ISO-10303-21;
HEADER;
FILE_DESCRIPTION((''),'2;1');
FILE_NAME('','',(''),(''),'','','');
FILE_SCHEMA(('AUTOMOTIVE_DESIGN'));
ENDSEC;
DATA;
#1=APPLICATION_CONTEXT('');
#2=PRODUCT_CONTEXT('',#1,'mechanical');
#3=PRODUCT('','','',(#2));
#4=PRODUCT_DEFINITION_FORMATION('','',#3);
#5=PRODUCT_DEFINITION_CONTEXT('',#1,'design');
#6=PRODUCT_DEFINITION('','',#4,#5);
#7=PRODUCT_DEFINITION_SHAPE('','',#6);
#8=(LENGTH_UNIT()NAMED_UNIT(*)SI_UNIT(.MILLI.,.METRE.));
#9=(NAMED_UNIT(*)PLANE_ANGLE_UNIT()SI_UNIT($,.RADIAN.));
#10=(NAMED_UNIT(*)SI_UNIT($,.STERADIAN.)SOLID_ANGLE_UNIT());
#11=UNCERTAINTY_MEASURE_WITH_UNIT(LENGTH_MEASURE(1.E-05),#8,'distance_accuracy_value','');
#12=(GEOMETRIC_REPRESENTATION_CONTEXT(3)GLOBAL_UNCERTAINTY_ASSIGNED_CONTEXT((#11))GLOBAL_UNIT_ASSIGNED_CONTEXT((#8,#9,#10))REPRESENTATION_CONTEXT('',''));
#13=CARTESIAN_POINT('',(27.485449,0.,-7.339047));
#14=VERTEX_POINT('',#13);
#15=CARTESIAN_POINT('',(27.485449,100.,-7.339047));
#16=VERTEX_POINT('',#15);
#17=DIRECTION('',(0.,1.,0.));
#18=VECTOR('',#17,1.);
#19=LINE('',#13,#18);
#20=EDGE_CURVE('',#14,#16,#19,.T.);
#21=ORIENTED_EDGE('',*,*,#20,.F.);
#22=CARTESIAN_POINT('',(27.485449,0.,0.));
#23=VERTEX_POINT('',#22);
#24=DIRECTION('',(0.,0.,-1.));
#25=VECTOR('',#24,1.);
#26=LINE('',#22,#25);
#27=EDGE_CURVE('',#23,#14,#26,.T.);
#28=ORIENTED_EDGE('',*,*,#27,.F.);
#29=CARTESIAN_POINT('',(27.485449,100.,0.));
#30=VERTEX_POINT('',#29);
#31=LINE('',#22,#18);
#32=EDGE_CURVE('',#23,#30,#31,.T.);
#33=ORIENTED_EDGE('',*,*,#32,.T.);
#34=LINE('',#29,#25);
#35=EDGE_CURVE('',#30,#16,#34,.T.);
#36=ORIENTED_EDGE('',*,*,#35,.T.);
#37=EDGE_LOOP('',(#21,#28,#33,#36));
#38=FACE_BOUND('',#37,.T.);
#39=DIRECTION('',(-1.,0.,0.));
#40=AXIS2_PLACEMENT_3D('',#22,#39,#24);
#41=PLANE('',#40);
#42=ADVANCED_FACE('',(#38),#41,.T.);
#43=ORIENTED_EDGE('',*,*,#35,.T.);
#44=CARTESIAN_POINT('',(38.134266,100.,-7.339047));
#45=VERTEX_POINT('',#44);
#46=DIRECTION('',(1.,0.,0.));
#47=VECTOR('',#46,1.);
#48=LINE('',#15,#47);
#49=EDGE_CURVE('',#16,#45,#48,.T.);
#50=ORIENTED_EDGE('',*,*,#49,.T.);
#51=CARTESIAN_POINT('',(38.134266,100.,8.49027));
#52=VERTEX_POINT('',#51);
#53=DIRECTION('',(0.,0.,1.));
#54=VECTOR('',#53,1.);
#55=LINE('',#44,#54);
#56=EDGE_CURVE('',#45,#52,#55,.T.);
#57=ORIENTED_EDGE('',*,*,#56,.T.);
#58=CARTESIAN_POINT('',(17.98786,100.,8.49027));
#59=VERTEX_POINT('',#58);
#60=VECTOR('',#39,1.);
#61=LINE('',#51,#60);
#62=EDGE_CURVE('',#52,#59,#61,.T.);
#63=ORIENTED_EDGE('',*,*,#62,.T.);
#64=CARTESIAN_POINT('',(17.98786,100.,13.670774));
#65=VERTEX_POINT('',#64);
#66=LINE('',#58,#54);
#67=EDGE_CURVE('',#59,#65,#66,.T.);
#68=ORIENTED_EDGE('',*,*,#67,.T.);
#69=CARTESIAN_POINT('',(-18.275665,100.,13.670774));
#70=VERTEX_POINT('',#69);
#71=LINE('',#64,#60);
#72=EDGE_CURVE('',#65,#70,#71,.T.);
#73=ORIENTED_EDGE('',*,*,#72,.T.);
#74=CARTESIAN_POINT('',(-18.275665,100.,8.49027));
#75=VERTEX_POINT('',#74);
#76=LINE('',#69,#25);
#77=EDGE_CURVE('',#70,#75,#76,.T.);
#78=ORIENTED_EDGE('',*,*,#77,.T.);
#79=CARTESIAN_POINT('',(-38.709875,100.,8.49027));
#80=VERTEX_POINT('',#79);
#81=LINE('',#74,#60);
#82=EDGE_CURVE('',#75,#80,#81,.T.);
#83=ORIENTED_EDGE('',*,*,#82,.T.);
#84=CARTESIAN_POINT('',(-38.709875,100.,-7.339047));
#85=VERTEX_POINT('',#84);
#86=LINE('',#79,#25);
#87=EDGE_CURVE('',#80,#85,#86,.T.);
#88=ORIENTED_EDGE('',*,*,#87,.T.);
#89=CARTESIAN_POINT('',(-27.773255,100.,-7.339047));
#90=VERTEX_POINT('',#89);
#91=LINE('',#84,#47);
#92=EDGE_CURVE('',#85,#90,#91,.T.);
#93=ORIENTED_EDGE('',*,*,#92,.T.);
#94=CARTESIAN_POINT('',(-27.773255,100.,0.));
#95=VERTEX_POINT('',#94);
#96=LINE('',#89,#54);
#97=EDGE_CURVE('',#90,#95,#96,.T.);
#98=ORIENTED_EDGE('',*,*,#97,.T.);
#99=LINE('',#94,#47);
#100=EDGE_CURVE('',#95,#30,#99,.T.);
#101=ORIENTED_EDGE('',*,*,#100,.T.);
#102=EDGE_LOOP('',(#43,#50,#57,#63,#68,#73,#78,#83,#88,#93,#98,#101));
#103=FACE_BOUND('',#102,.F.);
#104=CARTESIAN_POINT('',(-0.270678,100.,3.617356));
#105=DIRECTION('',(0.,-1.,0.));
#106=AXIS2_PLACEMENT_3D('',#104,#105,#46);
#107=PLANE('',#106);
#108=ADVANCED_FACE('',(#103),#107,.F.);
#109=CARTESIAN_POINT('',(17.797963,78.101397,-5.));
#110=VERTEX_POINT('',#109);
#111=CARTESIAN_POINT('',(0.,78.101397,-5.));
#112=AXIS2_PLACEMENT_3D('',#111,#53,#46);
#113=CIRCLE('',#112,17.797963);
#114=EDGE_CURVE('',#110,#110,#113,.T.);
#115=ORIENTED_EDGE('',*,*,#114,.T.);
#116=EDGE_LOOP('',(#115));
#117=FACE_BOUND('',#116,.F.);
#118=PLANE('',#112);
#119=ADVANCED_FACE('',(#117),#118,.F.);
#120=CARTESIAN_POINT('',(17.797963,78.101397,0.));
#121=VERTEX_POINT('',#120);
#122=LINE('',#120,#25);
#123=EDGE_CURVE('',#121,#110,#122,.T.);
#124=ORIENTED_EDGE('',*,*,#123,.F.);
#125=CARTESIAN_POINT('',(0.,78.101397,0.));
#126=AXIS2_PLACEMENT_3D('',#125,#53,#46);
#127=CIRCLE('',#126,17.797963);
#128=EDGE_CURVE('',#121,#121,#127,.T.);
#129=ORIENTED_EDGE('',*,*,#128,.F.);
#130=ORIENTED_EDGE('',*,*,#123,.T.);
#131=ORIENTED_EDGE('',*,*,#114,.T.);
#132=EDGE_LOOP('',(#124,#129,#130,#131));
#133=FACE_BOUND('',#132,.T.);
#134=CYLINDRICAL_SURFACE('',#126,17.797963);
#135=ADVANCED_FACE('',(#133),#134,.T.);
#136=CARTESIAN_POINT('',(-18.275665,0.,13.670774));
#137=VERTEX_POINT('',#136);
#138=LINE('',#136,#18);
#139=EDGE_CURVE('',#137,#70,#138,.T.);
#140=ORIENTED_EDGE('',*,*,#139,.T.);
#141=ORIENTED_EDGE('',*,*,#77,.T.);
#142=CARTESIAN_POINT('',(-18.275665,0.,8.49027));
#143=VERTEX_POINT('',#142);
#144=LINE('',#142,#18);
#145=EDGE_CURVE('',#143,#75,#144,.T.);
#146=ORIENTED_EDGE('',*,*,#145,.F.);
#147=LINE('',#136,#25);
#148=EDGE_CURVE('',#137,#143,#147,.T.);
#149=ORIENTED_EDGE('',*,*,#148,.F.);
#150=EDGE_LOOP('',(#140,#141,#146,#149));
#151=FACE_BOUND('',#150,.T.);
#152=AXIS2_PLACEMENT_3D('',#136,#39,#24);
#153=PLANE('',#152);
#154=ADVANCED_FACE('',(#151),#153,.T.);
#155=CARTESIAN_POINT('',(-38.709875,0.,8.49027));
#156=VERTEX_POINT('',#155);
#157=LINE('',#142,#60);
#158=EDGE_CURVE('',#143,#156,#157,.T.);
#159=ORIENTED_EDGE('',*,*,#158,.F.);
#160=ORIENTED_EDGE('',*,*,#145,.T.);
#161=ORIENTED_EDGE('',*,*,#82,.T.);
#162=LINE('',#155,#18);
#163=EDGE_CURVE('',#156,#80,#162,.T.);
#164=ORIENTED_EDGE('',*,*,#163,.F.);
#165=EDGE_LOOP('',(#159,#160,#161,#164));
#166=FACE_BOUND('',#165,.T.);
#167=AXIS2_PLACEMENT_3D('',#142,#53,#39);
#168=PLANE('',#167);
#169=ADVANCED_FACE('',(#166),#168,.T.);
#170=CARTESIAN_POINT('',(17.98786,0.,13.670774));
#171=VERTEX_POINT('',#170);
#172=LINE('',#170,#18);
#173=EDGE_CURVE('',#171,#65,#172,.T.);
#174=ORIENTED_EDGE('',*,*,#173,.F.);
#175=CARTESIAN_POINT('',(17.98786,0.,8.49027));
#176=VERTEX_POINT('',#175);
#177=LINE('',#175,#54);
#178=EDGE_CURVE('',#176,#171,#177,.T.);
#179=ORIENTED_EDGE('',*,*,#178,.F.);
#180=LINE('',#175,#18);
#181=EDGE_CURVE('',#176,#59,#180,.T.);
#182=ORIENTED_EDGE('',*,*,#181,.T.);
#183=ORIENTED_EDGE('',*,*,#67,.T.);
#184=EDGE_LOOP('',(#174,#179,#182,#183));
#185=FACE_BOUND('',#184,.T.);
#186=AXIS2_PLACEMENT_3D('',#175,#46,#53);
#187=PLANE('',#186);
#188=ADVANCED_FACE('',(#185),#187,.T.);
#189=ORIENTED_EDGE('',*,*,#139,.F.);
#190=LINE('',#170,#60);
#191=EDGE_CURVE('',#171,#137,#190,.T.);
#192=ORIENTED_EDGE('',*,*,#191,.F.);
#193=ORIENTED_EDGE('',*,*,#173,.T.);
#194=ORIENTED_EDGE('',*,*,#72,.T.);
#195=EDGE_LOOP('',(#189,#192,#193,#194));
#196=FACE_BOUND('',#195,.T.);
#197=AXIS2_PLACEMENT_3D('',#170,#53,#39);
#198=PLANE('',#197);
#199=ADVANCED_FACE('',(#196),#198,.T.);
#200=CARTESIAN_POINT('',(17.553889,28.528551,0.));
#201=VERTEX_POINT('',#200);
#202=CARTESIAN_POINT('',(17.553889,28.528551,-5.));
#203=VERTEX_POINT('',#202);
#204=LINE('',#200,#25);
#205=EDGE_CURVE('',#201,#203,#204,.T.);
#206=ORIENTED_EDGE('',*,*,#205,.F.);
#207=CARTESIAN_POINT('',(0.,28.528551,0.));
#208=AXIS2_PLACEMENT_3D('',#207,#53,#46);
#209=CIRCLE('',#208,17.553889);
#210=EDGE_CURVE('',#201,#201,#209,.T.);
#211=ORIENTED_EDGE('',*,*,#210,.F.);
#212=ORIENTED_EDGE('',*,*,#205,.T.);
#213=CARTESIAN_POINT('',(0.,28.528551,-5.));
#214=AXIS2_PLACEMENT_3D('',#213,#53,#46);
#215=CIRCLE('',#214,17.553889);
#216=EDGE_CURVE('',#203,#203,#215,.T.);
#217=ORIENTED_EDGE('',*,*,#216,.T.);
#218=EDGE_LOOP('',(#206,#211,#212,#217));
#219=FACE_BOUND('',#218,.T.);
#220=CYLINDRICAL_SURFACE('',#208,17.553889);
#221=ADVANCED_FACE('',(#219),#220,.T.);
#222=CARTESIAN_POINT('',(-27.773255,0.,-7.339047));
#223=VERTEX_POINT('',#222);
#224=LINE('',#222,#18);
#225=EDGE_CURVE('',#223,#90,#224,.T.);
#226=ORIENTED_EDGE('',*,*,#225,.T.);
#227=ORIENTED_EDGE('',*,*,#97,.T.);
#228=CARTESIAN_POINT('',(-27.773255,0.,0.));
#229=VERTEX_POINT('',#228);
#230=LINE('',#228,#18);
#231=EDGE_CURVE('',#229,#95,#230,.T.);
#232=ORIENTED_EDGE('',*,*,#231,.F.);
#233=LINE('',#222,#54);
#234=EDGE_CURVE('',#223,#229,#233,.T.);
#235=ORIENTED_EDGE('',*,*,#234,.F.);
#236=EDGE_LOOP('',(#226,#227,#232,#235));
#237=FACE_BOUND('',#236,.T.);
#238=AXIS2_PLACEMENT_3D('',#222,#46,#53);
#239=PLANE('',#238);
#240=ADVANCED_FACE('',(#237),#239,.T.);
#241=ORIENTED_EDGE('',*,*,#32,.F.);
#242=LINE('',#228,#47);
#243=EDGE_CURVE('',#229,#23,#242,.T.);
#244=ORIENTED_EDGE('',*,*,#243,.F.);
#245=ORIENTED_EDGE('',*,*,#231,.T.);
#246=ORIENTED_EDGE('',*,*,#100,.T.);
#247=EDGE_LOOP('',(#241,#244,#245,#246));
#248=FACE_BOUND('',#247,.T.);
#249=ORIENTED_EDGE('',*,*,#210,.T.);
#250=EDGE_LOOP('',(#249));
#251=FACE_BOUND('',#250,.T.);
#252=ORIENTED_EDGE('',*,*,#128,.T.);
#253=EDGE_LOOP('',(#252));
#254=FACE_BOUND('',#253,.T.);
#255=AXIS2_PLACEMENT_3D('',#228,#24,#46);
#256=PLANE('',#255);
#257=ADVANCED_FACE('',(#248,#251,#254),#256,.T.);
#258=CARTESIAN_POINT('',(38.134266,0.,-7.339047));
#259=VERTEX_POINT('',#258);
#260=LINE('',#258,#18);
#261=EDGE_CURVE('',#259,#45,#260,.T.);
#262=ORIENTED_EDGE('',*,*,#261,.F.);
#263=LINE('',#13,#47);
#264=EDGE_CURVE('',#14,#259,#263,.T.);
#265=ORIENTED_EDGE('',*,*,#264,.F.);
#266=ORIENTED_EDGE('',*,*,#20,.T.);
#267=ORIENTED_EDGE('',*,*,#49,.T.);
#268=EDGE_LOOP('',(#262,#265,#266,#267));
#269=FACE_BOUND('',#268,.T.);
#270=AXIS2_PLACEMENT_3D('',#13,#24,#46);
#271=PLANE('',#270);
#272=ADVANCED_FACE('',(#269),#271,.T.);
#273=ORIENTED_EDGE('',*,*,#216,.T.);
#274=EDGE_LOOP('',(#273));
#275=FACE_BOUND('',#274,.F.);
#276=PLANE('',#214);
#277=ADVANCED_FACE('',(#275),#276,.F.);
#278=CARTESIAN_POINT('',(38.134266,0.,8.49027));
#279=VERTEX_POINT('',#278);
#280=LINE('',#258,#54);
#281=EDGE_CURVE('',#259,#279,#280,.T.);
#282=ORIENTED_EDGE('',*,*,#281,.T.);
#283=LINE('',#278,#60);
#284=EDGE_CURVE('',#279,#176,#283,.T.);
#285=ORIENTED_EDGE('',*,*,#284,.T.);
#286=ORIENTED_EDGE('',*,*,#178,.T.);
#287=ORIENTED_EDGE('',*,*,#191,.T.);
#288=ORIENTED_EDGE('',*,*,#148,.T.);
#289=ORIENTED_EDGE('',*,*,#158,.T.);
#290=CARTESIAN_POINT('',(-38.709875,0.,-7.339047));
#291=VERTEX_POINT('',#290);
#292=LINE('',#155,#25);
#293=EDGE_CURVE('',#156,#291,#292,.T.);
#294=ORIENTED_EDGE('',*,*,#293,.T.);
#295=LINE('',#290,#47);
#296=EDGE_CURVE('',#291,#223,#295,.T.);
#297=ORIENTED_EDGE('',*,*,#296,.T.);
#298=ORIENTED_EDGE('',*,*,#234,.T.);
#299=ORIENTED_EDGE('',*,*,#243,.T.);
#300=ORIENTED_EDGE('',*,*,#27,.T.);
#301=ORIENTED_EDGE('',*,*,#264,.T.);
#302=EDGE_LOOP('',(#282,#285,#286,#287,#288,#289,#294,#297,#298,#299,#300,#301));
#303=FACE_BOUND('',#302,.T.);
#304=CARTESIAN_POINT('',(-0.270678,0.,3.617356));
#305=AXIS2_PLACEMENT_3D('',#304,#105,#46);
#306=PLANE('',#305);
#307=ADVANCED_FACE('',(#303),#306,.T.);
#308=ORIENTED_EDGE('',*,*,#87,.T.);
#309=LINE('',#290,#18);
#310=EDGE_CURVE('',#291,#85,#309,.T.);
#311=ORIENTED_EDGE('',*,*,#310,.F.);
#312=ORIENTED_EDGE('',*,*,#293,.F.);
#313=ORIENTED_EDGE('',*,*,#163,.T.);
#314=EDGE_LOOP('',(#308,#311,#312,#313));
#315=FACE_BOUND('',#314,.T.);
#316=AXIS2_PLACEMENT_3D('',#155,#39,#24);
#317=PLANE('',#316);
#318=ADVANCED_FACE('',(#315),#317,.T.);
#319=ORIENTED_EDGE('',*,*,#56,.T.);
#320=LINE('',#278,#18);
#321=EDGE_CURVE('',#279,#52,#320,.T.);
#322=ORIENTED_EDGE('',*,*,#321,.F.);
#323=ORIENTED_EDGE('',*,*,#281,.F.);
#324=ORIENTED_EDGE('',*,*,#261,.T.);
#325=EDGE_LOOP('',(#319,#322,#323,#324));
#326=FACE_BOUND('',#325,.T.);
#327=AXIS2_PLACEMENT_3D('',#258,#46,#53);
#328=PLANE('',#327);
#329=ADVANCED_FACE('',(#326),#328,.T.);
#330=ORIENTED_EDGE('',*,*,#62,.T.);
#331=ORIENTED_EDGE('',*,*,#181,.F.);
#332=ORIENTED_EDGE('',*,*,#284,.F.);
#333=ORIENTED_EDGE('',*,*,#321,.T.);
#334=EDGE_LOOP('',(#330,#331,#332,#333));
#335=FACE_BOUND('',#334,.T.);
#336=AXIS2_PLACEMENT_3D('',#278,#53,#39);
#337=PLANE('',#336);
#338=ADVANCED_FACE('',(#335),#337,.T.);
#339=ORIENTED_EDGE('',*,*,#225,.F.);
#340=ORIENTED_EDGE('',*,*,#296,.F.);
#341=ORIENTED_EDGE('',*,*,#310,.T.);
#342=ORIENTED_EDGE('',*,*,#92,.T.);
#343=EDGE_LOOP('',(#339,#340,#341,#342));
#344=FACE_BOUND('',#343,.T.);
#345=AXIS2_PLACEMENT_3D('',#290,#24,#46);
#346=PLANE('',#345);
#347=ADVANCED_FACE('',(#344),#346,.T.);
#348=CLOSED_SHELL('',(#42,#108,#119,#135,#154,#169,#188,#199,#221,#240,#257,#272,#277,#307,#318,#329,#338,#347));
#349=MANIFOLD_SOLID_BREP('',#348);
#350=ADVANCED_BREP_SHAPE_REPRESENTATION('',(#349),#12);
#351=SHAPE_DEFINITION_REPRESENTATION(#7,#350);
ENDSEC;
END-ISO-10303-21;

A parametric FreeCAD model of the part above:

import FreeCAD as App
import Part
import Sketcher
from FreeCAD import Vector
Q = App.Units.Quantity

doc = App.newDocument("Part")
params = doc.addObject("Spreadsheet::Sheet", "Params")
for row, (alias, value) in enumerate([
    ("pad1_length", "100 mm"),
    ("pad2_length", "5 mm"),
], start=1):
    params.set(f"A{row}", alias)
    params.set(f"B{row}", "=" + value)
    params.setAlias(f"B{row}", alias)

body = doc.addObject("PartDesign::Body", "Body")

sketch1 = doc.addObject("Sketcher::SketchObject", "Sketch")
body.addObject(sketch1)
sketch1.AttachmentSupport = (doc.XZ_Plane, [""])
sketch1.MapMode = "FlatFace"
sketch1.addGeometry(Part.LineSegment(Vector(-18, 8, 0), Vector(-39, 8, 0)), False)
sketch1.addGeometry(Part.LineSegment(Vector(-39, 8, 0), Vector(-39, -7, 0)), False)
sketch1.addGeometry(Part.LineSegment(Vector(-39, -7, 0), Vector(-28, -7, 0)), False)
sketch1.addGeometry(Part.LineSegment(Vector(-28, -7, 0), Vector(-28, 0, 0)), False)
sketch1.addGeometry(Part.LineSegment(Vector(-28, 0, 0), Vector(27, 0, 0)), False)
sketch1.addGeometry(Part.LineSegment(Vector(27, 0, 0), Vector(27, -7, 0)), False)
sketch1.addGeometry(Part.LineSegment(Vector(27, -7, 0), Vector(38, -7, 0)), False)
sketch1.addGeometry(Part.LineSegment(Vector(38, -7, 0), Vector(38, 8, 0)), False)
sketch1.addGeometry(Part.LineSegment(Vector(38, 8, 0), Vector(18, 8, 0)), False)
sketch1.addGeometry(Part.LineSegment(Vector(18, 8, 0), Vector(18, 14, 0)), False)
sketch1.addGeometry(Part.LineSegment(Vector(18, 14, 0), Vector(-18, 14, 0)), False)
sketch1.addGeometry(Part.LineSegment(Vector(-18, 14, 0), Vector(-18, 8, 0)), False)
sketch1.addConstraint(Sketcher.Constraint("Coincident", 0, 2, 1, 1))
sketch1.addConstraint(Sketcher.Constraint("Coincident", 1, 2, 2, 1))
sketch1.addConstraint(Sketcher.Constraint("Coincident", 2, 2, 3, 1))
sketch1.addConstraint(Sketcher.Constraint("Coincident", 3, 2, 4, 1))
sketch1.addConstraint(Sketcher.Constraint("Coincident", 4, 2, 5, 1))
sketch1.addConstraint(Sketcher.Constraint("Coincident", 5, 2, 6, 1))
sketch1.addConstraint(Sketcher.Constraint("Coincident", 6, 2, 7, 1))
sketch1.addConstraint(Sketcher.Constraint("Coincident", 7, 2, 8, 1))
sketch1.addConstraint(Sketcher.Constraint("Coincident", 8, 2, 9, 1))
sketch1.addConstraint(Sketcher.Constraint("Coincident", 9, 2, 10, 1))
sketch1.addConstraint(Sketcher.Constraint("Coincident", 10, 2, 11, 1))
sketch1.addConstraint(Sketcher.Constraint("Coincident", 11, 2, 0, 1))
sketch1.addConstraint(Sketcher.Constraint("Horizontal", 0))
sketch1.addConstraint(Sketcher.Constraint("Vertical", 1))
sketch1.addConstraint(Sketcher.Constraint("Horizontal", 2))
sketch1.addConstraint(Sketcher.Constraint("Vertical", 3))
sketch1.addConstraint(Sketcher.Constraint("Horizontal", 4))
sketch1.addConstraint(Sketcher.Constraint("Vertical", 5))
sketch1.addConstraint(Sketcher.Constraint("Horizontal", 6))
sketch1.addConstraint(Sketcher.Constraint("Vertical", 7))
sketch1.addConstraint(Sketcher.Constraint("Horizontal", 8))
sketch1.addConstraint(Sketcher.Constraint("Vertical", 9))
sketch1.addConstraint(Sketcher.Constraint("Horizontal", 10))
sketch1.addConstraint(Sketcher.Constraint("Vertical", 11))
sketch1.addConstraint(Sketcher.Constraint("PointOnObject", 3, 2, -1))
sketch1.addConstraint(Sketcher.Constraint("Horizontal", 2, 2, 5, 2))
sketch1.addConstraint(Sketcher.Constraint("Horizontal", 0, 2, 7, 2))
sketch1.addConstraint(Sketcher.Constraint("DistanceX", 0, 2, 0, 1, Q("20.43421 mm")))
sketch1.addConstraint(Sketcher.Constraint("DistanceX", 2, 1, 2, 2, Q("10.93662 mm")))
sketch1.addConstraint(Sketcher.Constraint("DistanceX", 4, 1, 4, 2, Q("55.258704 mm")))
sketch1.addConstraint(Sketcher.Constraint("DistanceX", 6, 1, 6, 2, Q("10.648817 mm")))
sketch1.addConstraint(Sketcher.Constraint("DistanceX", 8, 2, 8, 1, Q("20.146406 mm")))
sketch1.addConstraint(Sketcher.Constraint("DistanceY", 1, 2, 1, 1, Q("15.829317 mm")))
sketch1.addConstraint(Sketcher.Constraint("DistanceY", 3, 1, 3, 2, Q("7.339047 mm")))
sketch1.addConstraint(Sketcher.Constraint("DistanceY", 9, 1, 9, 2, Q("5.180504 mm")))
sketch1.addConstraint(Sketcher.Constraint("DistanceX", -1, 1, 4, 2, Q("27.485449 mm")))
pad1 = doc.addObject("PartDesign::Pad", "Pad")
body.addObject(pad1)
pad1.Profile = sketch1
pad1.setExpression("Length", "Params.pad1_length")
pad1.Reversed = True

sketch2 = doc.addObject("Sketcher::SketchObject", "Sketch001")
body.addObject(sketch2)
sketch2.AttachmentSupport = (doc.XY_Plane, [""])
sketch2.MapMode = "FlatFace"
sketch2.addGeometry(Part.Circle(Vector(0, 29, 0), Vector(0, 0, 1), 18), False)
sketch2.addGeometry(Part.Circle(Vector(0, 78, 0), Vector(0, 0, 1), 18), False)
sketch2.addConstraint(Sketcher.Constraint("PointOnObject", 0, 3, -2))
sketch2.addConstraint(Sketcher.Constraint("PointOnObject", 1, 3, -2))
sketch2.addConstraint(Sketcher.Constraint("Diameter", 0, Q("35.107778 mm")))
sketch2.addConstraint(Sketcher.Constraint("Diameter", 1, Q("35.595926 mm")))
sketch2.addConstraint(Sketcher.Constraint("DistanceY", -1, 1, 0, 3, Q("28.528551 mm")))
sketch2.addConstraint(Sketcher.Constraint("DistanceY", -1, 1, 1, 3, Q("78.101397 mm")))
pad2 = doc.addObject("PartDesign::Pad", "Pad001")
body.addObject(pad2)
pad2.Profile = sketch2
pad2.setExpression("Length", "Params.pad2_length")
pad2.Reversed = True

doc.recompute()
